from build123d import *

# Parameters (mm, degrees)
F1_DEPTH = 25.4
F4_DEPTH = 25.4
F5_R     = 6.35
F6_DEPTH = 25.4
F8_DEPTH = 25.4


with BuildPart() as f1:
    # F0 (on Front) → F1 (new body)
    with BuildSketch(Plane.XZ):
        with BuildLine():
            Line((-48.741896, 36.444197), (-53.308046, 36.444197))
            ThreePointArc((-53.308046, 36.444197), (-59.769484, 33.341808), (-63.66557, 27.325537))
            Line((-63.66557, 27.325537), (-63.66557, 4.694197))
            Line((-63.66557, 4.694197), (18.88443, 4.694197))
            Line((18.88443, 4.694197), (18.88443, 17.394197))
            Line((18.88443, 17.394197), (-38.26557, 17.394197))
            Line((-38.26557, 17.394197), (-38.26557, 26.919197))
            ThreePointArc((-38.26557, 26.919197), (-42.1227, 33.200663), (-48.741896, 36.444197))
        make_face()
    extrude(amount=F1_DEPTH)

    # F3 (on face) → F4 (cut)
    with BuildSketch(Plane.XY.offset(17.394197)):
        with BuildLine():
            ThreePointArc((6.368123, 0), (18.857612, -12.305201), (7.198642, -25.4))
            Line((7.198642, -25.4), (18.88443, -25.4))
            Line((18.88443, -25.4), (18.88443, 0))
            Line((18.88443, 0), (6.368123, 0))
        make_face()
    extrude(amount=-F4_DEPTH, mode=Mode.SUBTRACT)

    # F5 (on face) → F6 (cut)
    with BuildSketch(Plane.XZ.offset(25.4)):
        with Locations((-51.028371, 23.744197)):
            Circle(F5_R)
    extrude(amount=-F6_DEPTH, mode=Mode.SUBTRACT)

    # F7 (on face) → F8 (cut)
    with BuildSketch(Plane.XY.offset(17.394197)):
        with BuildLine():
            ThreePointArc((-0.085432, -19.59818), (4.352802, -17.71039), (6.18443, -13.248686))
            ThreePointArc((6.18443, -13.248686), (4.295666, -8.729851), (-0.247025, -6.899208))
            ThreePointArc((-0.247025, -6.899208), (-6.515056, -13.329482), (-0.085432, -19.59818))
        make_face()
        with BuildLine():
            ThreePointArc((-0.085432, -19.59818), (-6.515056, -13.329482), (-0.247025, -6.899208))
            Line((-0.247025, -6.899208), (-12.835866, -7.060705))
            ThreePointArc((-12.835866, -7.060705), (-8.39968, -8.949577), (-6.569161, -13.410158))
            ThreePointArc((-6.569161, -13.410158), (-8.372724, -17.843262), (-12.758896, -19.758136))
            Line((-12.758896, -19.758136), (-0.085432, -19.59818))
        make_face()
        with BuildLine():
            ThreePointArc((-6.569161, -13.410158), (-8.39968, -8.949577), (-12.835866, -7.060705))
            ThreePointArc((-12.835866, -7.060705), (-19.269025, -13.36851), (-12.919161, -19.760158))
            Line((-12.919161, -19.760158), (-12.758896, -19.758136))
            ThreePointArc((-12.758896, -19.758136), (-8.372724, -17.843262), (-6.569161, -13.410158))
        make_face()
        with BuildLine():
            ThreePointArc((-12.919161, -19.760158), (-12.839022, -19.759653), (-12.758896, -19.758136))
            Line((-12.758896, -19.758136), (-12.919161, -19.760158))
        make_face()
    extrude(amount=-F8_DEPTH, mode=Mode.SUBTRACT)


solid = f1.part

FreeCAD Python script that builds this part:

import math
import FreeCAD as App
import Part
import Sketcher

V = App.Vector
Q = App.Units.Quantity

doc = App.newDocument("Part")
body = doc.addObject("PartDesign::Body", "Body")

sketch1 = body.newObject("Sketcher::SketchObject", "Sketch")
sketch1.AttachmentSupport = (doc.getObject("XZ_Plane"), [""])
sketch1.MapMode = "FlatFace"
sketch1.addGeometry(Part.LineSegment(V(-48.7, 36.4, 0), V(-53.3, 36.4, 0)), False)
sketch1.addGeometry(Part.ArcOfCircle(Part.Circle(V(-51, 23.4, 0), V(0, 0, 1), 13.2), math.radians(100), math.radians(163)), False)
sketch1.addGeometry(Part.LineSegment(V(-63.7, 27.3, 0), V(-63.7, 4.7, 0)), False)
sketch1.addGeometry(Part.LineSegment(V(-63.7, 4.7, 0), V(18.9, 4.7, 0)), False)
sketch1.addGeometry(Part.LineSegment(V(18.9, 4.7, 0), V(18.9, 17.4, 0)), False)
sketch1.addGeometry(Part.LineSegment(V(18.9, 17.4, 0), V(-38.3, 17.4, 0)), False)
sketch1.addGeometry(Part.LineSegment(V(-38.3, 17.4, 0), V(-38.3, 26.9, 0)), False)
sketch1.addGeometry(Part.ArcOfCircle(Part.Circle(V(-51, 23.4, 0), V(0, 0, 1), 13.2), math.radians(15), math.radians(80)), False)
sketch1.addConstraint(Sketcher.Constraint("Coincident", 0, 2, 1, 1))
sketch1.addConstraint(Sketcher.Constraint("Coincident", 1, 2, 2, 1))
sketch1.addConstraint(Sketcher.Constraint("Coincident", 2, 2, 3, 1))
sketch1.addConstraint(Sketcher.Constraint("Coincident", 3, 2, 4, 1))
sketch1.addConstraint(Sketcher.Constraint("Coincident", 4, 2, 5, 1))
sketch1.addConstraint(Sketcher.Constraint("Coincident", 5, 2, 6, 1))
sketch1.addConstraint(Sketcher.Constraint("Coincident", 6, 2, 7, 1))
sketch1.addConstraint(Sketcher.Constraint("Coincident", 7, 2, 0, 1))
sketch1.addConstraint(Sketcher.Constraint("Horizontal", 0))
sketch1.addConstraint(Sketcher.Constraint("Vertical", 2))
sketch1.addConstraint(Sketcher.Constraint("Horizontal", 3))
sketch1.addConstraint(Sketcher.Constraint("Vertical", 4))
sketch1.addConstraint(Sketcher.Constraint("Horizontal", 5))
sketch1.addConstraint(Sketcher.Constraint("Vertical", 6))
sketch1.addConstraint(Sketcher.Constraint("Coincident", 7, 3, 1, 3))
sketch1.addConstraint(Sketcher.Constraint("DistanceY", 4, 1, 4, 2, Q("0.5 in")))
sketch1.addConstraint(Sketcher.Constraint("DistanceX", 1, 2, 5, 2, Q("1 in")))
sketch1.addConstraint(Sketcher.Constraint("DistanceX", 3, 1, 3, 2, Q("3.25 in")))
sketch1.addConstraint(Sketcher.Constraint("DistanceY", 6, 1, 6, 2, Q("0.375 in")))
sketch1.addConstraint(Sketcher.Constraint("DistanceY", 2, 2, 0, 2, Q("1.25 in")))
sketch1.addConstraint(Sketcher.Constraint("Radius", 1, 13.233361))
sketch1.addConstraint(Sketcher.Constraint("Radius", 7, 13.233365))
sketch1.addConstraint(Sketcher.Constraint("DistanceX", 0, 2, 0, 1, 4.56615))
sketch1.addConstraint(Sketcher.Constraint("DistanceX", 7, 3, -1, 1, 51.024971))
sketch1.addConstraint(Sketcher.Constraint("DistanceY", -1, 1, 1, 3, 23.409266))
pad1 = body.newObject("PartDesign::Pad", "Pad")
pad1.Profile = sketch1
pad1.Length = Q("1 in")

sketch2 = body.newObject("Sketcher::SketchObject", "Sketch001")
sketch2.AttachmentSupport = (doc.getObject("XY_Plane"), [""])
sketch2.MapMode = "FlatFace"
sketch2.AttachmentOffset = App.Placement(V(0, 0, 17.394197), App.Rotation())
sketch2.addGeometry(Part.ArcOfCircle(Part.Circle(V(6, -13, 0), V(0, 0, 1), 13), math.radians(-85), math.radians(89)), False)
sketch2.addGeometry(Part.LineSegment(V(7, -25, 0), V(19, -25, 0)), False)
sketch2.addGeometry(Part.LineSegment(V(19, -25, 0), V(19, 0, 0)), False)
sketch2.addGeometry(Part.LineSegment(V(19, 0, 0), V(6, 0, 0)), False)
sketch2.addConstraint(Sketcher.Constraint("Coincident", 0, 1, 1, 1))
sketch2.addConstraint(Sketcher.Constraint("Coincident", 1, 2, 2, 1))
sketch2.addConstraint(Sketcher.Constraint("Coincident", 2, 2, 3, 1))
sketch2.addConstraint(Sketcher.Constraint("Coincident", 3, 2, 0, 2))
sketch2.addConstraint(Sketcher.Constraint("Horizontal", 1))
sketch2.addConstraint(Sketcher.Constraint("Vertical", 2))
sketch2.addConstraint(Sketcher.Constraint("Horizontal", 3))
sketch2.addConstraint(Sketcher.Constraint("PointOnObject", 2, 2, -1))
sketch2.addConstraint(Sketcher.Constraint("DistanceY", 2, 1, 2, 2, Q("1 in")))
sketch2.addConstraint(Sketcher.Constraint("Radius", 0, 12.723012))
sketch2.addConstraint(Sketcher.Constraint("DistanceX", 1, 1, 1, 2, 11.685788))
sketch2.addConstraint(Sketcher.Constraint("DistanceX", 3, 2, 3, 1, 12.516307))
sketch2.addConstraint(Sketcher.Constraint("DistanceX", -1, 1, 0, 1, 7.198642))
pocket1 = body.newObject("PartDesign::Pocket", "Pocket")
pocket1.Profile = sketch2
pocket1.Length = Q("1 in")

sketch3 = body.newObject("Sketcher::SketchObject", "Sketch002")
sketch3.AttachmentSupport = (doc.getObject("XZ_Plane"), [""])
sketch3.MapMode = "FlatFace"
sketch3.AttachmentOffset = App.Placement(V(0, 0, 1 * 25.4), App.Rotation())
sketch3.addGeometry(Part.Circle(V(-51, 24, 0), V(0, 0, 1), 6), False)
sketch3.addConstraint(Sketcher.Constraint("Diameter", 0, Q("0.5 in")))
sketch3.addConstraint(Sketcher.Constraint("DistanceX", 0, 3, -1, 1, 51.028371))
sketch3.addConstraint(Sketcher.Constraint("DistanceY", -1, 1, 0, 3, 23.744197))
pocket2 = body.newObject("PartDesign::Pocket", "Pocket001")
pocket2.Profile = sketch3
pocket2.Length = Q("1 in")

sketch4 = body.newObject("Sketcher::SketchObject", "Sketch003")
sketch4.AttachmentSupport = (doc.getObject("XY_Plane"), [""])
sketch4.MapMode = "FlatFace"
sketch4.AttachmentOffset = App.Placement(V(0, 0, 17.394197), App.Rotation())
sketch4.addGeometry(Part.ArcOfCircle(Part.Circle(V(-0.17, -13.25, 0), V(0, 0, 1), 6.35), math.radians(-89), math.radians(0)), False)
sketch4.addGeometry(Part.ArcOfCircle(Part.Circle(V(-0.17, -13.25, 0), V(0, 0, 1), 6.35), math.radians(0), math.radians(91)), False)
sketch4.addGeometry(Part.LineSegment(V(-0.25, -6.9, 0), V(-12.84, -7.06, 0)), False)
sketch4.addGeometry(Part.ArcOfCircle(Part.Circle(V(-12.92, -13.41, 0), V(0, 0, 1), 6.35), math.radians(89), math.radians(270)), False)
sketch4.addGeometry(Part.ArcOfCircle(Part.Circle(V(-12.92, -13.41, 0), V(0, 0, 1), 6.35), math.radians(-90), math.radians(-88.55)), False)
sketch4.addGeometry(Part.LineSegment(V(-12.76, -19.76, 0), V(-0.09, -19.6, 0)), False)
sketch4.addConstraint(Sketcher.Constraint("Tangent", 0, 2, 1, 1))
sketch4.addConstraint(Sketcher.Constraint("Tangent", 1, 2, 2, 1))
sketch4.addConstraint(Sketcher.Constraint("Coincident", 2, 2, 3, 1))
sketch4.addConstraint(Sketcher.Constraint("Coincident", 3, 2, 4, 1))
sketch4.addConstraint(Sketcher.Constraint("Coincident", 4, 2, 5, 1))
sketch4.addConstraint(Sketcher.Constraint("Tangent", 5, 2, 0, 1))
sketch4.addConstraint(Sketcher.Constraint("Equal", 0, 1))
sketch4.addConstraint(Sketcher.Constraint("Equal", 1, 3))
sketch4.addConstraint(Sketcher.Constraint("Horizontal", 1, 3, 0, 2))
sketch4.addConstraint(Sketcher.Constraint("Radius", 0, Q("0.2500001 in")))
sketch4.addConstraint(Sketcher.Constraint("Radius", 4, 6.345816))
sketch4.addConstraint(Sketcher.Constraint("DistanceX", 4, 2, 1, 3, Q("0.4958002 in")))
sketch4.addConstraint(Sketcher.Constraint("DistanceX", 0, 3, -1, 1, 0.165572))
sketch4.addConstraint(Sketcher.Constraint("DistanceX", 3, 3, -1, 1, 12.919162))
sketch4.addConstraint(Sketcher.Constraint("DistanceY", 3, 3, -1, 1, 13.410158))
sketch4.addConstraint(Sketcher.Constraint("DistanceX", 4, 3, -1, 1, 12.919078))
sketch4.addConstraint(Sketcher.Constraint("DistanceY", 1, 2, -1, 1, 6.899208))
sketch4.addConstraint(Sketcher.Constraint("DistanceX", 3, 2, -1, 1, 12.919161))
sketch4.addConstraint(Sketcher.Constraint("DistanceX", 2, 2, 1, 2, 12.588841))
pocket3 = body.newObject("PartDesign::Pocket", "Pocket002")
pocket3.Profile = sketch4
pocket3.Length = Q("1 in")

doc.recompute()
